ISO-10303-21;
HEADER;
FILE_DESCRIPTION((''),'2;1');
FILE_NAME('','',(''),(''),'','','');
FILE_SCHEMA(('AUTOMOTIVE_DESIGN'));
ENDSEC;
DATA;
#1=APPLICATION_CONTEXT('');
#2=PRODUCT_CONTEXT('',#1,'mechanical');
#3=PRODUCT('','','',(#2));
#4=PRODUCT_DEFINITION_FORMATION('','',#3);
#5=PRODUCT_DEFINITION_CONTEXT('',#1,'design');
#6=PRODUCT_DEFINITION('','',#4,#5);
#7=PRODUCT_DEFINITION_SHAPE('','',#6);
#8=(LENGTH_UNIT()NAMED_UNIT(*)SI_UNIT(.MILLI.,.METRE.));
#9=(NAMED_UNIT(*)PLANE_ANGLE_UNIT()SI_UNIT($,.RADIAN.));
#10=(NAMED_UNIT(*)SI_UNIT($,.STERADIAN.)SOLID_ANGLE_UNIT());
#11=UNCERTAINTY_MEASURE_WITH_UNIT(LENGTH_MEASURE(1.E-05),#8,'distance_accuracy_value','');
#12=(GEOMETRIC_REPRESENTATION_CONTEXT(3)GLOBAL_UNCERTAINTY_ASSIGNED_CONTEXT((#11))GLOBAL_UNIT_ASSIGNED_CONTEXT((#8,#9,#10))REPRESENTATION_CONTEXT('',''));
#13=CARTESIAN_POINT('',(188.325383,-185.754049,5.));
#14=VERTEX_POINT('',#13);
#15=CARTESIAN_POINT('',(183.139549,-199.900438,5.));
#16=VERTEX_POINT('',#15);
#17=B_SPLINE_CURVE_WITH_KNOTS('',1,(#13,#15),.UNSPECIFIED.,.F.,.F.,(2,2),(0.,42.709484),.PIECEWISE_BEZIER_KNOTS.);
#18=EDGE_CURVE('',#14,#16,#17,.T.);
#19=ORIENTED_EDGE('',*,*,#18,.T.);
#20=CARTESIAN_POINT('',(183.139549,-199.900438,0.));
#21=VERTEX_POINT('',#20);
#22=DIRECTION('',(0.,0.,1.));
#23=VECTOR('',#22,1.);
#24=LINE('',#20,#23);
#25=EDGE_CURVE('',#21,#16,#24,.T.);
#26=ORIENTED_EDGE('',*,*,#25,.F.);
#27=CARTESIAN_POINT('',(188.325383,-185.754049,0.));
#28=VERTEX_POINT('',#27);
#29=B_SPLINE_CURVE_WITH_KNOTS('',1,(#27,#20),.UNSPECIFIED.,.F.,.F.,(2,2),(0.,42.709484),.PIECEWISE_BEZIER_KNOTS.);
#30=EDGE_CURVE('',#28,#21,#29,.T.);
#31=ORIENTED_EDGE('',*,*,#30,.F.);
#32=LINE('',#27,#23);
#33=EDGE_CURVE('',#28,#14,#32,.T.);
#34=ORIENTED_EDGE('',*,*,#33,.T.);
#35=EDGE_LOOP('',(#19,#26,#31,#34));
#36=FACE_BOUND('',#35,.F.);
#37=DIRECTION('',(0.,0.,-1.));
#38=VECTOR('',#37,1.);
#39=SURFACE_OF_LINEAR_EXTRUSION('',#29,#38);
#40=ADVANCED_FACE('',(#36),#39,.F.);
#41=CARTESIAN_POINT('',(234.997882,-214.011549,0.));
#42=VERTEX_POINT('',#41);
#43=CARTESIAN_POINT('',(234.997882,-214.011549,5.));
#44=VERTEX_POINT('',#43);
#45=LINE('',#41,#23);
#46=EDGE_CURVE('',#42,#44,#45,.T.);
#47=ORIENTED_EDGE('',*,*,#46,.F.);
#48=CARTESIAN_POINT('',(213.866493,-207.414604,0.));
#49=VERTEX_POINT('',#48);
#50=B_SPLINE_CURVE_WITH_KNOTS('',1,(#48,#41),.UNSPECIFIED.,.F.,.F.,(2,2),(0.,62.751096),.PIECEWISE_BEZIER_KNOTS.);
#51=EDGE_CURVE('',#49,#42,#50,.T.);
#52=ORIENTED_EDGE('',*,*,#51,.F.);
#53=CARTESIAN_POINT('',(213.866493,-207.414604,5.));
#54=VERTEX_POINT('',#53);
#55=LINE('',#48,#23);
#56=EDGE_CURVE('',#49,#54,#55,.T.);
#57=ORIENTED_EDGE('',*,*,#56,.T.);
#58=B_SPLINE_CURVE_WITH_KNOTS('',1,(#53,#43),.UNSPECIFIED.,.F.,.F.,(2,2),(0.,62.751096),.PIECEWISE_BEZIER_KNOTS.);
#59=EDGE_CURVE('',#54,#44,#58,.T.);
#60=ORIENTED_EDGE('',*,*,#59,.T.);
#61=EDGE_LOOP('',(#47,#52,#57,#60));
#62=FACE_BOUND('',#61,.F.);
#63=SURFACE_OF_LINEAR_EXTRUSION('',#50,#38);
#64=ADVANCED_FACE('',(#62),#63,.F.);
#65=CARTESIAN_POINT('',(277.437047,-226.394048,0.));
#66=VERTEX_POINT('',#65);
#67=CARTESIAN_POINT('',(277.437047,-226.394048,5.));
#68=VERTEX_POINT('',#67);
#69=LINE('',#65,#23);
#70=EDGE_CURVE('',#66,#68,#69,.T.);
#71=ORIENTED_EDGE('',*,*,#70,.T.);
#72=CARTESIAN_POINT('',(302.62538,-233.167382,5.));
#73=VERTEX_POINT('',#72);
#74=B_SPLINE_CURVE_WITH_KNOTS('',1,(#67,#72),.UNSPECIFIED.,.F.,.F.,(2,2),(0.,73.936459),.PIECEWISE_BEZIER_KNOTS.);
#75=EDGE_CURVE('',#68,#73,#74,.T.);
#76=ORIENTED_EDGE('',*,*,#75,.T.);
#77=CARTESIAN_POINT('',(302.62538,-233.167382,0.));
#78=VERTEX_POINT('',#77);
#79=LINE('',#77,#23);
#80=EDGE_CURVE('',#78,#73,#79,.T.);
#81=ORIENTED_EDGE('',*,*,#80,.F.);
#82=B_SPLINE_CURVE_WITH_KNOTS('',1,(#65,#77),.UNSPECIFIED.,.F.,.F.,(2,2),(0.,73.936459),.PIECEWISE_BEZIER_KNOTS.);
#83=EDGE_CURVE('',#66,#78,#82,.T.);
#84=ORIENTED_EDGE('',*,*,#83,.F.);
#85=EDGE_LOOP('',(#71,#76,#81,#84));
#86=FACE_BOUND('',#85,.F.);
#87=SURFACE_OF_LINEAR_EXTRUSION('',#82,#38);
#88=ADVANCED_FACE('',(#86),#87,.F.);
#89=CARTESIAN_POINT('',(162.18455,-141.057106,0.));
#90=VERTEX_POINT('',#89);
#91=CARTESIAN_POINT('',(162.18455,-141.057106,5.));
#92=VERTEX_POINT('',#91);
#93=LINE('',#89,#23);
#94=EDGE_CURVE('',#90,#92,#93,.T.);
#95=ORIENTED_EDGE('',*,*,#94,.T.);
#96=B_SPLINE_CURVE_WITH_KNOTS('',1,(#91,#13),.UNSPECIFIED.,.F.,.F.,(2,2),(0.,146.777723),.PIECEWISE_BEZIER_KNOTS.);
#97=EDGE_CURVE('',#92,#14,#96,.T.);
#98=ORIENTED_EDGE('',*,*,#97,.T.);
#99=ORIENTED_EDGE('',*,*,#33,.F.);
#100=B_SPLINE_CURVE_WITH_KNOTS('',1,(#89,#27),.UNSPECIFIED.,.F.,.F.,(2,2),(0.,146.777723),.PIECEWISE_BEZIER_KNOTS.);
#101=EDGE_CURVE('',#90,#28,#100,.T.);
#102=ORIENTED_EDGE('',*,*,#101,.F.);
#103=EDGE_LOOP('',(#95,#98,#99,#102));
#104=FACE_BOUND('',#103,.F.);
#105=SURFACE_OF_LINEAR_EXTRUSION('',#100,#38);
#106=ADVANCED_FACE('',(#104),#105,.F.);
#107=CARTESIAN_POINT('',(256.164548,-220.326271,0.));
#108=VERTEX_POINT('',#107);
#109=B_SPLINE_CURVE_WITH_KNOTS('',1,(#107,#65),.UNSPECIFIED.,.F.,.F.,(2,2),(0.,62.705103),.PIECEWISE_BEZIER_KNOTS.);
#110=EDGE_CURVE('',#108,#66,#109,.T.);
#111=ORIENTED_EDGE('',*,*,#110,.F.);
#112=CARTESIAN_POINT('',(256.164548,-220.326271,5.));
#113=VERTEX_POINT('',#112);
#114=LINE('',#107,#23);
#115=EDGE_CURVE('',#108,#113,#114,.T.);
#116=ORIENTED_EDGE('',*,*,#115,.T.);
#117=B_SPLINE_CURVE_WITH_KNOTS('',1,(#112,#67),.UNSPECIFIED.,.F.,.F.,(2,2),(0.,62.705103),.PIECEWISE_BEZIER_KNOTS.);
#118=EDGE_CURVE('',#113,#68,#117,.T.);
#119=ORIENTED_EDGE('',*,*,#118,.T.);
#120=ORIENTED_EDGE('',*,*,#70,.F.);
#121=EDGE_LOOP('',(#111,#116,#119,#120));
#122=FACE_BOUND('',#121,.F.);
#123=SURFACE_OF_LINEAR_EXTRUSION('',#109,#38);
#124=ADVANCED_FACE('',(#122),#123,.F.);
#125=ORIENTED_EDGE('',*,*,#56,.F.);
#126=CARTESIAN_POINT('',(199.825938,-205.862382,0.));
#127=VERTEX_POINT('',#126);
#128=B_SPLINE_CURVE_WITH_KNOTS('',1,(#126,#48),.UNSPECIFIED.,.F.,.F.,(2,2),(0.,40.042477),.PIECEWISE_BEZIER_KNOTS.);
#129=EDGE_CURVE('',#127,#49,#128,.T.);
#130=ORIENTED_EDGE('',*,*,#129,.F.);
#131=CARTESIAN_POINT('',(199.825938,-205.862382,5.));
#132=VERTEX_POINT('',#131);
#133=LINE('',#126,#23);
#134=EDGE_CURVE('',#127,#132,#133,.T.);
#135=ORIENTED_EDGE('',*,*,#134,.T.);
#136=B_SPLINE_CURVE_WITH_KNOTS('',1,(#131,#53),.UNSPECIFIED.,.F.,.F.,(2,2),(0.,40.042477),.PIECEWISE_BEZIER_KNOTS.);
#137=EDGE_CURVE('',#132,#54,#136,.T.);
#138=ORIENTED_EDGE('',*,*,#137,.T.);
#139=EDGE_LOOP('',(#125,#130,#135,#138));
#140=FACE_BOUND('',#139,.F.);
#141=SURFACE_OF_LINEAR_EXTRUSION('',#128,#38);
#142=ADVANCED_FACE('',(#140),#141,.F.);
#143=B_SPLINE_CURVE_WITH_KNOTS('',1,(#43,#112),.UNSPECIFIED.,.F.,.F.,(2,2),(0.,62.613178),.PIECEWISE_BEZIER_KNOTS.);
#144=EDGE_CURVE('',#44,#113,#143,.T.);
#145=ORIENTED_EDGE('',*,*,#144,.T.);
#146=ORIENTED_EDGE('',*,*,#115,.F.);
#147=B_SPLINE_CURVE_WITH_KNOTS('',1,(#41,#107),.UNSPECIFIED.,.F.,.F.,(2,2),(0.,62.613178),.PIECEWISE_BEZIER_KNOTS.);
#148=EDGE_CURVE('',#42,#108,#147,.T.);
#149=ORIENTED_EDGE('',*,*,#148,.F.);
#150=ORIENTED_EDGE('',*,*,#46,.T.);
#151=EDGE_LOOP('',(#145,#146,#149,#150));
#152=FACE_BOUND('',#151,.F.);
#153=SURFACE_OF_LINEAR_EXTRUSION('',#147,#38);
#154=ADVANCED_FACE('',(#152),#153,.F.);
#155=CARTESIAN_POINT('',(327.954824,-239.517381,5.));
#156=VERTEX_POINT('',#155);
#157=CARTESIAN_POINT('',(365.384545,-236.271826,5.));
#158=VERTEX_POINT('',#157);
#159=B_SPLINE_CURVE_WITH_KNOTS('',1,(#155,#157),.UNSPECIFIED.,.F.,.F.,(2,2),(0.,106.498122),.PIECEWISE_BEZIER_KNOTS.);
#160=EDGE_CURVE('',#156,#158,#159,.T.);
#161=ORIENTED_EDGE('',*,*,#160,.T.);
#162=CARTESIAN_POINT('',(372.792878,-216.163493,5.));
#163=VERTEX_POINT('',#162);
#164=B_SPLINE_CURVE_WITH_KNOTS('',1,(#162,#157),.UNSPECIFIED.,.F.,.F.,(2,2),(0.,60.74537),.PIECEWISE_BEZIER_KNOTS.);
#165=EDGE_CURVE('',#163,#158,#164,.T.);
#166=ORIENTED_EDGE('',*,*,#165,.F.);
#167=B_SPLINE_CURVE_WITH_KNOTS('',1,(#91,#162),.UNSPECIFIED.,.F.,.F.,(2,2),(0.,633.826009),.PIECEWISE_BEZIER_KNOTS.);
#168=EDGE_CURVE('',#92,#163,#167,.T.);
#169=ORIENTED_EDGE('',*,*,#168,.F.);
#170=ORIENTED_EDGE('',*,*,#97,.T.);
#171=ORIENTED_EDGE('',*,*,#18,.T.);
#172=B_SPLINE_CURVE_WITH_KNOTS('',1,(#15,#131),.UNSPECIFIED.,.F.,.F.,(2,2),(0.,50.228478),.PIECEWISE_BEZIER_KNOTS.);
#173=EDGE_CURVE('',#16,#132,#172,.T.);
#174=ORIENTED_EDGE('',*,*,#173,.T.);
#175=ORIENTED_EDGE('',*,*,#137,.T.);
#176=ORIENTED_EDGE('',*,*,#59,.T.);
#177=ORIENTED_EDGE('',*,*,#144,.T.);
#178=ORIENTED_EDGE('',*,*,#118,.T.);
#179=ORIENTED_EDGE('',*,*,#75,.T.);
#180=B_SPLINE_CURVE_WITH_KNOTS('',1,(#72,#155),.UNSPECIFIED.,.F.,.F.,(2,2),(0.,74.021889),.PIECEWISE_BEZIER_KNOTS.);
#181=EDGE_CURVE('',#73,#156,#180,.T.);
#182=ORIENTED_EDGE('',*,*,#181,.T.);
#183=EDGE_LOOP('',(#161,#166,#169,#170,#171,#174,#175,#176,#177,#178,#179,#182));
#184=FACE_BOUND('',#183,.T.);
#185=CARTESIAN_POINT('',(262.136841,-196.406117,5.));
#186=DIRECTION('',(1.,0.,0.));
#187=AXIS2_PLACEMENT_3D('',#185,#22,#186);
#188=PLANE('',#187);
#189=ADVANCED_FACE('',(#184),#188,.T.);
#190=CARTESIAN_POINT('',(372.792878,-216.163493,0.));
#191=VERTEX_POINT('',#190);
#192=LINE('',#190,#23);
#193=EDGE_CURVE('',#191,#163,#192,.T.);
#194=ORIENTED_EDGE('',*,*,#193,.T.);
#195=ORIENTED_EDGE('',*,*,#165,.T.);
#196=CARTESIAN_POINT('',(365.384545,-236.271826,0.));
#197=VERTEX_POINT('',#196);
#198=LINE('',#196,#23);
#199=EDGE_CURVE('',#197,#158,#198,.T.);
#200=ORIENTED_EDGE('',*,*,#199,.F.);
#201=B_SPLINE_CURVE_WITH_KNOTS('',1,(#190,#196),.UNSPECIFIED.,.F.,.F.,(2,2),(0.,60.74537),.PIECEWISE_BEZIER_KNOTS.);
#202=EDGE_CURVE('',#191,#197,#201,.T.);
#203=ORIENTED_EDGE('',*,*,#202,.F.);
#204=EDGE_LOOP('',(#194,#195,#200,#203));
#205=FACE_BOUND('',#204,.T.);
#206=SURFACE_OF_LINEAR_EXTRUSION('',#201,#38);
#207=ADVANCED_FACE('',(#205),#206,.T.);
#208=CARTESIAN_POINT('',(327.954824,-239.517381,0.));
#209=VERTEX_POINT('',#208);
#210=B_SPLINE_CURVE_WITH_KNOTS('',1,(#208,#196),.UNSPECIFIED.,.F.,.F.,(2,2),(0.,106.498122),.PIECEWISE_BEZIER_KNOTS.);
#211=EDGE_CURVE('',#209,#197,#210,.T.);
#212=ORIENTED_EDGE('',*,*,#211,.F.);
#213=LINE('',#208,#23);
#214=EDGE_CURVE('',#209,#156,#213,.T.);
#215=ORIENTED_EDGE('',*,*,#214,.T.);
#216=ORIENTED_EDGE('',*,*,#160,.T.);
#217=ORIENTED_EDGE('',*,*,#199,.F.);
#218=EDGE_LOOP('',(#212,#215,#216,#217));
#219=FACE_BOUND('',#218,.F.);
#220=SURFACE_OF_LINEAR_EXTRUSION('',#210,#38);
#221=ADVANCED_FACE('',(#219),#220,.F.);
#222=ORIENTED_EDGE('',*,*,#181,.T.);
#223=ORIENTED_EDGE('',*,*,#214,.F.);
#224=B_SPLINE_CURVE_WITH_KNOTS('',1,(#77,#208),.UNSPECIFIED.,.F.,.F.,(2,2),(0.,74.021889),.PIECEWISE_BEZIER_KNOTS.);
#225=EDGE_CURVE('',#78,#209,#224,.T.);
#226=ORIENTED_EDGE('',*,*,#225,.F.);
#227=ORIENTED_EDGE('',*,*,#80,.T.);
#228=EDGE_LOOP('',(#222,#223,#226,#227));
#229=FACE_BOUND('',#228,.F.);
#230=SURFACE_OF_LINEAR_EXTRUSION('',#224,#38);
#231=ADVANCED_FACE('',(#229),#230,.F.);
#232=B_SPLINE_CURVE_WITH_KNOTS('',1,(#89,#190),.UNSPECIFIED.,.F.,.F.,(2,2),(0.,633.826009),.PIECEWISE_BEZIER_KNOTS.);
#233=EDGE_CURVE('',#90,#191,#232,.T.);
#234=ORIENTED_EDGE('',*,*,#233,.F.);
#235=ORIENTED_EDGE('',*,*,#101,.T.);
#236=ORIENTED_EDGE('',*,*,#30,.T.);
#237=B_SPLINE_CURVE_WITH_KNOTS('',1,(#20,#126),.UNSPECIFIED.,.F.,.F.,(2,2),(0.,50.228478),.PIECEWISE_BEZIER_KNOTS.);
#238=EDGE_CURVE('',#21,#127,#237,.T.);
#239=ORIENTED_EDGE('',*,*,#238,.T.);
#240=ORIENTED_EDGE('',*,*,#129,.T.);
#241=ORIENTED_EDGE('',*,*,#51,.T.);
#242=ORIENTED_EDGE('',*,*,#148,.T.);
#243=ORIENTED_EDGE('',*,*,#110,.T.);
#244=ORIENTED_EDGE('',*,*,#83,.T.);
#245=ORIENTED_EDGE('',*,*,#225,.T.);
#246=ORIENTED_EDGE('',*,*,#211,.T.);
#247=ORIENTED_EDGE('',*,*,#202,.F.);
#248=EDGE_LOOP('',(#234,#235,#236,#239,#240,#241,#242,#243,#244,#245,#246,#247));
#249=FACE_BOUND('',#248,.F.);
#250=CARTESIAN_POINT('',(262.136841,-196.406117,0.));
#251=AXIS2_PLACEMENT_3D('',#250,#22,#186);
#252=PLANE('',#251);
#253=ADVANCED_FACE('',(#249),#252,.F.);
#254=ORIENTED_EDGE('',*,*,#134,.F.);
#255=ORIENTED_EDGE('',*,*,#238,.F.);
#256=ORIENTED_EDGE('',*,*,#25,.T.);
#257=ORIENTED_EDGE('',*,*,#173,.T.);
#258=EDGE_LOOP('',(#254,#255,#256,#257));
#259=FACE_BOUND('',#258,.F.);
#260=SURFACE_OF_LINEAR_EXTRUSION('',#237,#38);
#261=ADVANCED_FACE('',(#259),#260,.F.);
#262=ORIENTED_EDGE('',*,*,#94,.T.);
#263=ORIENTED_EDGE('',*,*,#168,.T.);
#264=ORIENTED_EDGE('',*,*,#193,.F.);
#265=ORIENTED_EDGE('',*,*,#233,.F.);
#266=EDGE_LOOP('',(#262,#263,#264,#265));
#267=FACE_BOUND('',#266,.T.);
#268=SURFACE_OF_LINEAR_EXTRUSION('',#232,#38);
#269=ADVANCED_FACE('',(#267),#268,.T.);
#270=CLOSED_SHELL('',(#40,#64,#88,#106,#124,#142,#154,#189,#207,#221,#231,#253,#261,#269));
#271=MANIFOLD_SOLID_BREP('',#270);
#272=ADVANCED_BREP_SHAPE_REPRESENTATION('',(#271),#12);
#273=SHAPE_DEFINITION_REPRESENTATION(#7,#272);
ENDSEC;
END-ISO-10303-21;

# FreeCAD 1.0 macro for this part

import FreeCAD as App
import Part
import Sketcher

doc = App.newDocument("Part")
params = doc.addObject("Spreadsheet::Sheet", "Params")
for row, (alias, value) in enumerate([
    ("pad1_length", "5 mm"),
], start=1):
    params.set(f"A{row}", alias)
    params.set(f"B{row}", "=" + value)
    params.setAlias(f"B{row}", alias)

body = doc.addObject("PartDesign::Body", "Body")

# Sketch on XY plane
sketch1 = body.newObject("Sketcher::SketchObject", "Sketch")
sketch1.AttachmentSupport = (doc.getObject("XY_Plane"), [""])
sketch1.MapMode = "FlatFace"
sketch1.addGeometry([
    Part.BSplineCurve([App.Vector(183.139549, -199.900438, 0), App.Vector(199.825938, -205.862382, 0)], [2, 2], [0, 50.228478], False, 1, [1, 1], False),  # 0
    Part.BSplineCurve([App.Vector(199.825938, -205.862382, 0), App.Vector(213.866493, -207.414604, 0)], [2, 2], [0, 40.042477], False, 1, [1, 1], False),  # 1
    Part.BSplineCurve([App.Vector(213.866493, -207.414604, 0), App.Vector(234.997882, -214.011549, 0)], [2, 2], [0, 62.751096], False, 1, [1, 1], False),  # 2
    Part.BSplineCurve([App.Vector(234.997882, -214.011549, 0), App.Vector(256.164548, -220.326271, 0)], [2, 2], [0, 62.613178], False, 1, [1, 1], False),  # 3
    Part.BSplineCurve([App.Vector(256.164548, -220.326271, 0), App.Vector(277.437047, -226.394048, 0)], [2, 2], [0, 62.705103], False, 1, [1, 1], False),  # 4
    Part.BSplineCurve([App.Vector(277.437047, -226.394048, 0), App.Vector(302.62538, -233.167382, 0)], [2, 2], [0, 73.936459], False, 1, [1, 1], False),  # 5
    Part.BSplineCurve([App.Vector(302.62538, -233.167382, 0), App.Vector(327.954824, -239.517381, 0)], [2, 2], [0, 74.021889], False, 1, [1, 1], False),  # 6
    Part.BSplineCurve([App.Vector(327.954824, -239.517381, 0), App.Vector(365.384545, -236.271826, 0)], [2, 2], [0, 106.498122], False, 1, [1, 1], False),  # 7
    Part.BSplineCurve([App.Vector(372.792878, -216.163493, 0), App.Vector(365.384545, -236.271826, 0)], [2, 2], [0, 60.74537], False, 1, [1, 1], False),  # 8
    Part.BSplineCurve([App.Vector(162.18455, -141.057106, 0), App.Vector(372.792878, -216.163493, 0)], [2, 2], [0, 633.826009], False, 1, [1, 1], False),  # 9
    Part.BSplineCurve([App.Vector(162.18455, -141.057106, 0), App.Vector(188.325383, -185.754049, 0)], [2, 2], [0, 146.777723], False, 1, [1, 1], False),  # 10
    Part.BSplineCurve([App.Vector(188.325383, -185.754049, 0), App.Vector(183.139549, -199.900438, 0)], [2, 2], [0, 42.709484], False, 1, [1, 1], False),  # 11
], False)
sketch1.addConstraint([
    Sketcher.Constraint("Block", 0),
    Sketcher.Constraint("Block", 1),
    Sketcher.Constraint("Block", 2),
    Sketcher.Constraint("Block", 3),
    Sketcher.Constraint("Block", 4),
    Sketcher.Constraint("Block", 5),
    Sketcher.Constraint("Block", 6),
    Sketcher.Constraint("Block", 7),
    Sketcher.Constraint("Block", 8),
    Sketcher.Constraint("Block", 9),
    Sketcher.Constraint("Block", 10),
    Sketcher.Constraint("Block", 11),
])
pad1 = body.newObject("PartDesign::Pad", "Pad")
pad1.Profile = sketch1
pad1.setExpression("Length", "Params.pad1_length")

doc.recompute()
